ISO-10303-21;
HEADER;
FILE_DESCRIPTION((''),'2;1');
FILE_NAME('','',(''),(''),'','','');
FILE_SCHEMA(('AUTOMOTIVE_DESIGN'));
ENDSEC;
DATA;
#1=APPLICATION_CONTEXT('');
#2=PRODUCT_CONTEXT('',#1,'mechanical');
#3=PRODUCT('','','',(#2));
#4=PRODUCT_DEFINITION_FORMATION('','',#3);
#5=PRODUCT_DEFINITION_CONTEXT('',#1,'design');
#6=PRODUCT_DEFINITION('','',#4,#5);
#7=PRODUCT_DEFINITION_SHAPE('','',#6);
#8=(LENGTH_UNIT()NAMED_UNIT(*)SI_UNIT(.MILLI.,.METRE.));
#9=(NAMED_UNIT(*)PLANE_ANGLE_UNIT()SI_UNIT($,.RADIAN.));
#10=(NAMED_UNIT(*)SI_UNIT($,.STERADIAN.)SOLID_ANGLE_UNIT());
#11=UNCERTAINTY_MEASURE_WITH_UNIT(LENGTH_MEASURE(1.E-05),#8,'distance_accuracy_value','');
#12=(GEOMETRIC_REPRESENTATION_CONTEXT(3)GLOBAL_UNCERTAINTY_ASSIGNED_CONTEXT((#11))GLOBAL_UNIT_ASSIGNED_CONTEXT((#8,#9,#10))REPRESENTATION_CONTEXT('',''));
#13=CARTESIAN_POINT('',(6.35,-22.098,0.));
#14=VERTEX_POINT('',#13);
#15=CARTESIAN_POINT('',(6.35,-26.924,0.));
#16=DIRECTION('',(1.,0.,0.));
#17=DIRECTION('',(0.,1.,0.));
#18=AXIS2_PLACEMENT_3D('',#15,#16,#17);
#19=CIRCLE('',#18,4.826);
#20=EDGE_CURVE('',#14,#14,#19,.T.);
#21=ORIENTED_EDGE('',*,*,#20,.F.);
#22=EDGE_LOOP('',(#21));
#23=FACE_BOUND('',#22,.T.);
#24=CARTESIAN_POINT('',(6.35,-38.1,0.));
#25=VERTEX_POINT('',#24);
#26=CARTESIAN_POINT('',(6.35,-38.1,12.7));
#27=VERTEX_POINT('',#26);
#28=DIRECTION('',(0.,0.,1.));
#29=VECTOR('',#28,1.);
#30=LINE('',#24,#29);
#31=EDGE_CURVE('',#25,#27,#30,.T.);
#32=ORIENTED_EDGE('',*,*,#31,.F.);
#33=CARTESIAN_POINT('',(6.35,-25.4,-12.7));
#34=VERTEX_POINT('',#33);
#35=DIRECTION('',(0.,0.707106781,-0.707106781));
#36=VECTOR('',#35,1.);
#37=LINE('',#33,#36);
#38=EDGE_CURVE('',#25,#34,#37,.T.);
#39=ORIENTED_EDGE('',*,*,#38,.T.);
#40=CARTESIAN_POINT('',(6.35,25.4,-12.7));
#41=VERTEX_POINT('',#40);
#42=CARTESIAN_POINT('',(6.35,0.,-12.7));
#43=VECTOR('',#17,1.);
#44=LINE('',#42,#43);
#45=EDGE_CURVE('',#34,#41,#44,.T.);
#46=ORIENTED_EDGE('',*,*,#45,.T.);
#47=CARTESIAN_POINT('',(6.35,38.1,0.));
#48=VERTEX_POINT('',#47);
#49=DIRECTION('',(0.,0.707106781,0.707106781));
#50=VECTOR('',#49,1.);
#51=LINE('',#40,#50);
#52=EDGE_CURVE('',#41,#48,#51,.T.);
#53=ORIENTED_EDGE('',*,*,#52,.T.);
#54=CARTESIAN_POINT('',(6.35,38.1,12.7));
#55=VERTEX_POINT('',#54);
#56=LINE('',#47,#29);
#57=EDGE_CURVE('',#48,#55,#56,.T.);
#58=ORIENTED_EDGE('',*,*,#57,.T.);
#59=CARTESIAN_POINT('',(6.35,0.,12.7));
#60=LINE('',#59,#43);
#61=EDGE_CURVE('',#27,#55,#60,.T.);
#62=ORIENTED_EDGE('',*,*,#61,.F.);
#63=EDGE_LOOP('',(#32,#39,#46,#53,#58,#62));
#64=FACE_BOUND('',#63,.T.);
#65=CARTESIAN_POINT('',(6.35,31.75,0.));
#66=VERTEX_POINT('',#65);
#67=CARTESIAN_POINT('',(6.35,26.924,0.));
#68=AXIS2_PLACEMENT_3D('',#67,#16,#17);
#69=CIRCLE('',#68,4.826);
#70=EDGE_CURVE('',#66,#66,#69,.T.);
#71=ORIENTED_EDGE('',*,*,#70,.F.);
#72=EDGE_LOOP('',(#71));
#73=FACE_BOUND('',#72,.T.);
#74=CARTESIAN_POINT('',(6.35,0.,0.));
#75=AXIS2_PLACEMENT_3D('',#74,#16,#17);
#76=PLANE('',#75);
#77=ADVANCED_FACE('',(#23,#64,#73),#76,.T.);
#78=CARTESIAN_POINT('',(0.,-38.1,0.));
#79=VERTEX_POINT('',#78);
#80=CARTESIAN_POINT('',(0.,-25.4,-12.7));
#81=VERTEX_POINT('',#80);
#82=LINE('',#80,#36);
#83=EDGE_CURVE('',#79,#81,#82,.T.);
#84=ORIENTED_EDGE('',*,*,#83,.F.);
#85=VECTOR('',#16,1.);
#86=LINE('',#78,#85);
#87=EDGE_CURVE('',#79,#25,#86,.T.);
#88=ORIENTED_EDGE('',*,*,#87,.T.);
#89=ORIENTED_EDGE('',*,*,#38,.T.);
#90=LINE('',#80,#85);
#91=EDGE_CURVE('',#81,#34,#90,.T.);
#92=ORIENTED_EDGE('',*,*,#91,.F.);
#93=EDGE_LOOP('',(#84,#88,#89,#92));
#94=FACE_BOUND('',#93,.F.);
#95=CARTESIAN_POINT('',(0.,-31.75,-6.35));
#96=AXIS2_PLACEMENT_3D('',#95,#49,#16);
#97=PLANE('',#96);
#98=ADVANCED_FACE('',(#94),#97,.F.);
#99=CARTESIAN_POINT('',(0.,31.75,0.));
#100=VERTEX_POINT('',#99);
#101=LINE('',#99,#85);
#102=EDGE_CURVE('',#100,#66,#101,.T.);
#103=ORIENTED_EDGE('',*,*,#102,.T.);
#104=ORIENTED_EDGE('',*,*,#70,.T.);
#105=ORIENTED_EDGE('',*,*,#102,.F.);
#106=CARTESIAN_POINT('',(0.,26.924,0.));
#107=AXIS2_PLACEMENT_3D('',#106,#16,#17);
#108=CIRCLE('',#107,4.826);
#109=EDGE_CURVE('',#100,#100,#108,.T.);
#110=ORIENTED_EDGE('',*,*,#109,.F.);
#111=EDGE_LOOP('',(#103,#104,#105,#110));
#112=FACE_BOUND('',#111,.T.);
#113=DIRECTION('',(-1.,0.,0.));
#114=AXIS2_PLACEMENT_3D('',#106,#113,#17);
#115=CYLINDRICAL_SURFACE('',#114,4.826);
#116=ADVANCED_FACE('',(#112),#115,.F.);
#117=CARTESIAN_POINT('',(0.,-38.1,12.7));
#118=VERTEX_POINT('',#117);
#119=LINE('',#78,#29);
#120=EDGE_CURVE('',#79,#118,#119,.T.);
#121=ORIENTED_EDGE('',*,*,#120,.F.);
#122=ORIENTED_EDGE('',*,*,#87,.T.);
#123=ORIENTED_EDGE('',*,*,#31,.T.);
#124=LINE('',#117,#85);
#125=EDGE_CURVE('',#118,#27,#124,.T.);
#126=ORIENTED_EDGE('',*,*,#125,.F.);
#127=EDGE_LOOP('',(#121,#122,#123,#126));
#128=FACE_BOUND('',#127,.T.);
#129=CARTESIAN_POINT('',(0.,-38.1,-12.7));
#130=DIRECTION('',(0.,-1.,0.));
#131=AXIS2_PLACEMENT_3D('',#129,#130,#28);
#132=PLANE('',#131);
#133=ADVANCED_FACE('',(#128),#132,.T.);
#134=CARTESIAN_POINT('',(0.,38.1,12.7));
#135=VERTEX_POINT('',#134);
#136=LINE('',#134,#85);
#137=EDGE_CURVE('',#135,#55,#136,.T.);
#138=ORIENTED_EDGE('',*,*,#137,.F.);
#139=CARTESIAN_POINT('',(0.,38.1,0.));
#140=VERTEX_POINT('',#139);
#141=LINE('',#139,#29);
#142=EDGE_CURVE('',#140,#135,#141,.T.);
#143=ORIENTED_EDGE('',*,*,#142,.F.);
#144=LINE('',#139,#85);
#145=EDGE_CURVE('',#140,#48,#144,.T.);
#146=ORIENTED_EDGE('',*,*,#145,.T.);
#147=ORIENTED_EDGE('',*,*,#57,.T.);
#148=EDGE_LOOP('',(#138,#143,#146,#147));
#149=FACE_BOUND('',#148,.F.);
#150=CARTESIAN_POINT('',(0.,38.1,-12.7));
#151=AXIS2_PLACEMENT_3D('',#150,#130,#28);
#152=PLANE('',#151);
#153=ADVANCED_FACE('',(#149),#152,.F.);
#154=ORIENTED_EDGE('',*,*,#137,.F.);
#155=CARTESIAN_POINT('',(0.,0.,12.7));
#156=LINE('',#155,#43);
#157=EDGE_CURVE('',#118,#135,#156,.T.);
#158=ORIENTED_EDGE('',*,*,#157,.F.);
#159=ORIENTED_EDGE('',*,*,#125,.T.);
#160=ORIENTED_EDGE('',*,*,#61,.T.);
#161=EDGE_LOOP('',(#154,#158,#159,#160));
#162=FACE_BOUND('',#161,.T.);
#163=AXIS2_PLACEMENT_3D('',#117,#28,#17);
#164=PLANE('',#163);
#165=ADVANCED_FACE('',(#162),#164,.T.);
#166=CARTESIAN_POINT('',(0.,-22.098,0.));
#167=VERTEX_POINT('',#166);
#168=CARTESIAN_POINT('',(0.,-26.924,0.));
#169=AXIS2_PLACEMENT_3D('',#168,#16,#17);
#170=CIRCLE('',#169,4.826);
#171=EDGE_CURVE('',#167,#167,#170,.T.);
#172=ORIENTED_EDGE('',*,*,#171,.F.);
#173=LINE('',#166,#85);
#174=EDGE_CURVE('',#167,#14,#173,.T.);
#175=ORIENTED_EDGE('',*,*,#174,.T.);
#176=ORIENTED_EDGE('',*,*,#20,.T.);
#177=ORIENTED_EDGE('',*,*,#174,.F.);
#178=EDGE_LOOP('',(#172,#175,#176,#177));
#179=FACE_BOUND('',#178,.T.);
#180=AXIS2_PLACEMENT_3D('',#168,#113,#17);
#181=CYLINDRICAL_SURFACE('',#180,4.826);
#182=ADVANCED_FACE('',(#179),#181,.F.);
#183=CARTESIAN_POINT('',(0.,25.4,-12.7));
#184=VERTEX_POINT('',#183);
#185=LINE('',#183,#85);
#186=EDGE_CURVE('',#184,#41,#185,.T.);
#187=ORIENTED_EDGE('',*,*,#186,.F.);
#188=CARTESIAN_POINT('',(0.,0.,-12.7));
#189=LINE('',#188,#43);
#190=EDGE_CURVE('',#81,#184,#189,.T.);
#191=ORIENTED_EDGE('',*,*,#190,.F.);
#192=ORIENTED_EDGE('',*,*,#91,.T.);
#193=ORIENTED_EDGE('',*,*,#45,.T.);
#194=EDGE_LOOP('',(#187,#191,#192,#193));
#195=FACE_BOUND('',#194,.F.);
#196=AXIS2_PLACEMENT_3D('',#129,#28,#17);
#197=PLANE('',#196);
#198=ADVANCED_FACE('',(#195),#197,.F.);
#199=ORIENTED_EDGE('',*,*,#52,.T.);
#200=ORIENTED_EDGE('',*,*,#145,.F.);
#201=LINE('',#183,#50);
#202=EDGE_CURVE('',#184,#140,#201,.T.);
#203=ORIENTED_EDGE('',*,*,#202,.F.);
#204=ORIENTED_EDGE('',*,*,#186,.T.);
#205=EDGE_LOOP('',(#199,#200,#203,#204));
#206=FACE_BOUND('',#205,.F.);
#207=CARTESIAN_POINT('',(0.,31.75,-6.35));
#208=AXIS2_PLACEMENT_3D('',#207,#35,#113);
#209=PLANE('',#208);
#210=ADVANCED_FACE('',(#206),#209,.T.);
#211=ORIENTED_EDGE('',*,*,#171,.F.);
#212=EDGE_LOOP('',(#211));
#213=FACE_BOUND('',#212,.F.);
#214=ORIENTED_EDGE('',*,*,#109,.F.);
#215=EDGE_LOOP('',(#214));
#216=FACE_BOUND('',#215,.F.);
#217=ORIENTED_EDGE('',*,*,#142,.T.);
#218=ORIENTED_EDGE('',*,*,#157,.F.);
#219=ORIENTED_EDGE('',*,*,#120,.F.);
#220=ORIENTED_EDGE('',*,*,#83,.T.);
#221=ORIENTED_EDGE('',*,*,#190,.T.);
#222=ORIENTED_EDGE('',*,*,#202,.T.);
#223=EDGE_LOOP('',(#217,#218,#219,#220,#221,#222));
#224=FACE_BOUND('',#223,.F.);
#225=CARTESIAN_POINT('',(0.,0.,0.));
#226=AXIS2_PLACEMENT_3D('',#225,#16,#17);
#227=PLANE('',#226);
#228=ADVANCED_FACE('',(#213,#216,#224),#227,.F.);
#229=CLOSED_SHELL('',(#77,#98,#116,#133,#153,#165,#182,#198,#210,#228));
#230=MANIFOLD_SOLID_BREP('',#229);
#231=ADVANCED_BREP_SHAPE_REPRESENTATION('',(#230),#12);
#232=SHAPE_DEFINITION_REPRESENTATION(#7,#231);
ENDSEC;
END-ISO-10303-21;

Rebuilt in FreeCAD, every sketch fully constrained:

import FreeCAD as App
import Part
import Sketcher
from FreeCAD import Vector
Q = App.Units.Quantity


def edges_at(feature, points):
    """Names of the edges that pass closest to the given points."""
    edges = feature.Shape.Edges
    near = lambda p: min(range(len(edges)), key=lambda i: edges[i].distToShape(Part.Vertex(*p))[0])
    return sorted({f"Edge{near(p) + 1}" for p in points})

doc = App.newDocument("Part")
params = doc.addObject("Spreadsheet::Sheet", "Params")
for row, (alias, value) in enumerate([
    ("sketch1_diameter", "0.38 in"),
    ("sketch1_width", "3 in"),
    ("sketch1_height", "1 in"),
    ("pad1_length", "0.25 in"),
    ("chamfer_size", "0.5 in"),
], start=1):
    params.set(f"A{row}", alias)
    params.set(f"B{row}", "=" + value)
    params.setAlias(f"B{row}", alias)

body = doc.addObject("PartDesign::Body", "Body")

# Sketch on YZ plane
sketch1 = body.newObject("Sketcher::SketchObject", "Sketch")
sketch1.AttachmentSupport = (doc.getObject("YZ_Plane"), [""])
sketch1.MapMode = "FlatFace"
sketch1.addGeometry([
    Part.LineSegment(Vector(-38.1, 12.7, 0), Vector(-38.1, -12.7, 0)),  # 0
    Part.LineSegment(Vector(-38.1, -12.7, 0), Vector(38.1, -12.7, 0)),  # 1
    Part.LineSegment(Vector(38.1, -12.7, 0), Vector(38.1, 12.7, 0)),  # 2
    Part.LineSegment(Vector(38.1, 12.7, 0), Vector(-38.1, 12.7, 0)),  # 3
    Part.Circle(Vector(-26.9, 0, 0), Vector(0, 0, 1), 4.8),  # 4
    Part.Circle(Vector(26.9, 0, 0), Vector(0, 0, 1), 4.8),  # 5
], False)
sketch1.addConstraint([
    Sketcher.Constraint("Coincident", 0, 2, 1, 1),
    Sketcher.Constraint("Coincident", 1, 2, 2, 1),
    Sketcher.Constraint("Coincident", 2, 2, 3, 1),
    Sketcher.Constraint("Coincident", 3, 2, 0, 1),
    Sketcher.Constraint("Vertical", 0),
    Sketcher.Constraint("Horizontal", 1),
    Sketcher.Constraint("Vertical", 2),
    Sketcher.Constraint("Horizontal", 3),
    Sketcher.Constraint("Equal", 4, 5),
    Sketcher.Constraint("Symmetric", 4, 3, 5, 3, -1, 1),
    Sketcher.Constraint("Symmetric", 0, 2, 2, 2, -1, 1),
    Sketcher.Constraint("PointOnObject", 4, 3, -1),
    Sketcher.Constraint("Diameter", 4, Q("0.38 in")),
    Sketcher.Constraint("DistanceX", 1, 1, 1, 2, Q("3 in")),
    Sketcher.Constraint("DistanceY", 0, 2, 0, 1, Q("1 in")),
    Sketcher.Constraint("DistanceX", 4, 3, -1, 1, Q("1.06 in")),
])
sketch1.setExpression("Constraints[12]", "Params.sketch1_diameter")
sketch1.setExpression("Constraints[13]", "Params.sketch1_width")
sketch1.setExpression("Constraints[14]", "Params.sketch1_height")
pad1 = body.newObject("PartDesign::Pad", "Pad")
pad1.Profile = sketch1
pad1.setExpression("Length", "Params.pad1_length")
doc.recompute()

chamfer = body.newObject("PartDesign::Chamfer", "Chamfer")
chamfer.Base = (pad1, edges_at(pad1, [(3.175, -38.1, -12.7), (3.175, 38.1, -12.7)]))
chamfer.setExpression("Size", "Params.chamfer_size")

doc.recompute()
